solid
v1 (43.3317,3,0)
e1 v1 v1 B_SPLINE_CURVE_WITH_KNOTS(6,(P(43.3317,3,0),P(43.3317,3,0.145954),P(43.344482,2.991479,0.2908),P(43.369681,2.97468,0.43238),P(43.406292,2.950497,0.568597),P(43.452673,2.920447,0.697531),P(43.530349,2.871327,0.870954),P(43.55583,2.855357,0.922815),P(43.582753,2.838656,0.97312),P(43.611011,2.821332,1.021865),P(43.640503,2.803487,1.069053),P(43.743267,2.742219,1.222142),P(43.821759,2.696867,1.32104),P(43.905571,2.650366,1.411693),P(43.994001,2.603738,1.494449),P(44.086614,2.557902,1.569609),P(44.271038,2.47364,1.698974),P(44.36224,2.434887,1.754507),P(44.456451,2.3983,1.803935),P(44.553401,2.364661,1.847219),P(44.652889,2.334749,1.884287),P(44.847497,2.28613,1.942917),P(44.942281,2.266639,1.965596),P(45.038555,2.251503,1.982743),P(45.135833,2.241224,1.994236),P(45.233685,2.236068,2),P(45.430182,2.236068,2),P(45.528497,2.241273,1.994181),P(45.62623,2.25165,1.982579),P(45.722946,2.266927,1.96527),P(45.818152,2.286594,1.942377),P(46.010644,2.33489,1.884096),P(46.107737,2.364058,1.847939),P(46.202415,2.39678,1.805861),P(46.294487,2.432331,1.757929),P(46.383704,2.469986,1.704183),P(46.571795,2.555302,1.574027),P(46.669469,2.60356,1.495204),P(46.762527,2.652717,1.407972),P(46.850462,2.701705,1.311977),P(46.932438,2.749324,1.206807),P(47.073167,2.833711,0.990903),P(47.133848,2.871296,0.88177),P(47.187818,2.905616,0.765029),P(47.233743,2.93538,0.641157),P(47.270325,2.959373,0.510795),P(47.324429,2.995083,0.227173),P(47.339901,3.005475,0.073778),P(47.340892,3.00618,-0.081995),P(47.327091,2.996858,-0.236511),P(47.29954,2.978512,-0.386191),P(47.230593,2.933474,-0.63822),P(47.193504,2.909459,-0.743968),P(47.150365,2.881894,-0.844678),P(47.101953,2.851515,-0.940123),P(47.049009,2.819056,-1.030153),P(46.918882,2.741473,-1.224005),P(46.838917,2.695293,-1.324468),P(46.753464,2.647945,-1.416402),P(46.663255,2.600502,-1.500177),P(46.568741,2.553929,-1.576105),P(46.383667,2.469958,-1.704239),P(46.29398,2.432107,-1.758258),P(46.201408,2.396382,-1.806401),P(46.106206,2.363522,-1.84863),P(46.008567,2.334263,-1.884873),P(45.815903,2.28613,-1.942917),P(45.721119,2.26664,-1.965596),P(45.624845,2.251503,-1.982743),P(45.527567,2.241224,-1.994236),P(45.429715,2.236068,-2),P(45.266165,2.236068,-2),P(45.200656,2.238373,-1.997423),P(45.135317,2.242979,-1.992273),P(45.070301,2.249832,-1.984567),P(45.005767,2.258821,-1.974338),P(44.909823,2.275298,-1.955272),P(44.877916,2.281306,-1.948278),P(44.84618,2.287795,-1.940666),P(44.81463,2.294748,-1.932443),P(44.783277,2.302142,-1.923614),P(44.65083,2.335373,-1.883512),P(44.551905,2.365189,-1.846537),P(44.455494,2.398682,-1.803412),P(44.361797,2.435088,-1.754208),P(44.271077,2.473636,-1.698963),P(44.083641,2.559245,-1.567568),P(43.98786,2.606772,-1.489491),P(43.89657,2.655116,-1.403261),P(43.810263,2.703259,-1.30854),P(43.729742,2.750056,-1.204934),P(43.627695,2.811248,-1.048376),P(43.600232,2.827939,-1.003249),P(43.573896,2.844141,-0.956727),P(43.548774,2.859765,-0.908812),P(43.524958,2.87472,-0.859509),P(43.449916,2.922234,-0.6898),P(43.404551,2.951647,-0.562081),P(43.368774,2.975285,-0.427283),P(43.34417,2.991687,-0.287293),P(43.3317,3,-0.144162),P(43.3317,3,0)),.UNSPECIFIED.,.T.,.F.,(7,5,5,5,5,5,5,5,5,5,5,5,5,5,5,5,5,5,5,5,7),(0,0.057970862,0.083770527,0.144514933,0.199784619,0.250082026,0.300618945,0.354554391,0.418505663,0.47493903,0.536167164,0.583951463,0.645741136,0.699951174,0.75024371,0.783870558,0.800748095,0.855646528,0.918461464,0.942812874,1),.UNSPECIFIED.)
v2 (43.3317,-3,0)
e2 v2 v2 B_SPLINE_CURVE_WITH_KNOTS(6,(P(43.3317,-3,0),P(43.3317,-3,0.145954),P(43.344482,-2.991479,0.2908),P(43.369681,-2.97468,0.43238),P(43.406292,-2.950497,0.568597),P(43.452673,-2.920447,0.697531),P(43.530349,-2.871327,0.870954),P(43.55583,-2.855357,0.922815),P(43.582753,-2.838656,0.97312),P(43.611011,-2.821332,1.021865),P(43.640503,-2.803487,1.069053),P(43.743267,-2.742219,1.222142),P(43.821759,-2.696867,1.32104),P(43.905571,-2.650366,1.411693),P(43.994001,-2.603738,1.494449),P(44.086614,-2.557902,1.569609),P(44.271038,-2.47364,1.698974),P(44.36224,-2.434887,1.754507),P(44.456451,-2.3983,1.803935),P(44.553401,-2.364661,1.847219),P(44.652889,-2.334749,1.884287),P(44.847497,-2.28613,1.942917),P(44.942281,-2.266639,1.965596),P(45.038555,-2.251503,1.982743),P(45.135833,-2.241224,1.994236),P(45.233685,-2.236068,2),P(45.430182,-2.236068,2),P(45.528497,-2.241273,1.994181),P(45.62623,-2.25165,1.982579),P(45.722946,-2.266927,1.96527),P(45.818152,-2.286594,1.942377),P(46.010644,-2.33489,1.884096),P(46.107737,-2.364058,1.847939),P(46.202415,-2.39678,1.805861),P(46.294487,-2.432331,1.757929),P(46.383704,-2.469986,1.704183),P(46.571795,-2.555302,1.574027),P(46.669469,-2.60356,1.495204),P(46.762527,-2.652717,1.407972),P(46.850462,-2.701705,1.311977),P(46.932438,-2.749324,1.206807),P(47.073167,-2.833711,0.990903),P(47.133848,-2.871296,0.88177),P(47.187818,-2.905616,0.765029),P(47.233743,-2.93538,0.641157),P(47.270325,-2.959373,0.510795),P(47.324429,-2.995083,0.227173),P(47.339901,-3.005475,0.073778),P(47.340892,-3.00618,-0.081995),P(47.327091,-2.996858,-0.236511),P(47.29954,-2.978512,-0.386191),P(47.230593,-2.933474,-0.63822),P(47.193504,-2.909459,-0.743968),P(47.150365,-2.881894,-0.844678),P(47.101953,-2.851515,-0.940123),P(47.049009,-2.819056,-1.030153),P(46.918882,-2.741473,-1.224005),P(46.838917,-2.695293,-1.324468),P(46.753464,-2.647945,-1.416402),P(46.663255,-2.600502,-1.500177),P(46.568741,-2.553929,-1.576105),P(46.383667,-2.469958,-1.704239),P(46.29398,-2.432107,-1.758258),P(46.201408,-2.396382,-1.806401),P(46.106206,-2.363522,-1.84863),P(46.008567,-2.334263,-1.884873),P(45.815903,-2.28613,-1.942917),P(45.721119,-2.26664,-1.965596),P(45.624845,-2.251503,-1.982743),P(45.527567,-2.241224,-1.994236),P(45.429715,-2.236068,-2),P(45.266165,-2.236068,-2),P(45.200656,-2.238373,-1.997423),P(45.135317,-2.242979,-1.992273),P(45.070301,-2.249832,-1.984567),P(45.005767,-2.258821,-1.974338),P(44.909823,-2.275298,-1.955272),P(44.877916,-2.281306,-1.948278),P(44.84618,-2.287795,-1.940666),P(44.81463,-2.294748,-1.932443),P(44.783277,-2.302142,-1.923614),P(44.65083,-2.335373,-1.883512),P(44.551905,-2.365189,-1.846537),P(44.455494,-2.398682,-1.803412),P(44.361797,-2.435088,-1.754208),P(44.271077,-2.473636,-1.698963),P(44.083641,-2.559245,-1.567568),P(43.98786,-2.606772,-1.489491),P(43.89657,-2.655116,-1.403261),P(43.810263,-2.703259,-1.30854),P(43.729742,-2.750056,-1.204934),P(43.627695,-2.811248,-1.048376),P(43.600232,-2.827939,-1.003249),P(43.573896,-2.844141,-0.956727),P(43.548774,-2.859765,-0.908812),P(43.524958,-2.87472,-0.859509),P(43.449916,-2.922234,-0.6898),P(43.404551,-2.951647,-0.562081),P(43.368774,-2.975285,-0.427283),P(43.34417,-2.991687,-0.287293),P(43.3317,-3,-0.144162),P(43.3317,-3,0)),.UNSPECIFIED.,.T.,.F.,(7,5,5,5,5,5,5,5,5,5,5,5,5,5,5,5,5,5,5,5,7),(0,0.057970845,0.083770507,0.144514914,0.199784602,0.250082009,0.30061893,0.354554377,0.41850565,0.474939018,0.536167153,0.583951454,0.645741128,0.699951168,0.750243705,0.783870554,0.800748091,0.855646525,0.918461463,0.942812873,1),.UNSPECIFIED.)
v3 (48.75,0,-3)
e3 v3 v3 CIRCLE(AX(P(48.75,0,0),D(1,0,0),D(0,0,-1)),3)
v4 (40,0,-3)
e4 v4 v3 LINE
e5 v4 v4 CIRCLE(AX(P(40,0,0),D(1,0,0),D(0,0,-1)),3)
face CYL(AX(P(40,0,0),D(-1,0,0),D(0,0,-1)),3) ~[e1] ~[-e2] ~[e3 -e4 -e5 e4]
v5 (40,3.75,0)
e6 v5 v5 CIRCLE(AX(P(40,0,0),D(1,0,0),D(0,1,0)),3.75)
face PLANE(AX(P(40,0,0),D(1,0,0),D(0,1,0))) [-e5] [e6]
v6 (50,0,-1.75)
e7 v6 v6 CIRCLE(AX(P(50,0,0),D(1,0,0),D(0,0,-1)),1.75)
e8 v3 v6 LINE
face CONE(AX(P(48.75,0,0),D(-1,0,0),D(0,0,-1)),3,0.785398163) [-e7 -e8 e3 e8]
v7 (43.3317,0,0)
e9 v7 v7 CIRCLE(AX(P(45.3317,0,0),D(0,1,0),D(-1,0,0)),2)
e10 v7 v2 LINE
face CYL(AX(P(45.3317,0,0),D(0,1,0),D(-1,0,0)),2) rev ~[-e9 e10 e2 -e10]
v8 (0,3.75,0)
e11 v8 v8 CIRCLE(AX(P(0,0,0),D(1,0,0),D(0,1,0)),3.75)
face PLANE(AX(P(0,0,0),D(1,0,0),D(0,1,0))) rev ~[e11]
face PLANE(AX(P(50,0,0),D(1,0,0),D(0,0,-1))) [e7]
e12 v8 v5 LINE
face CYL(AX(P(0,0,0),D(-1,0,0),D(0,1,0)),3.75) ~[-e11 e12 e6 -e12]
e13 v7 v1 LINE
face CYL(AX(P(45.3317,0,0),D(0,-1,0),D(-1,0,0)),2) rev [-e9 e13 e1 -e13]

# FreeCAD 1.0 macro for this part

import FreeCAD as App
import Part
import Sketcher

V = App.Vector
Q = App.Units.Quantity


def edges_at(feature, points):
    """Names of the edges that pass closest to the given points."""
    edges = feature.Shape.Edges
    near = lambda p: min(range(len(edges)), key=lambda i: edges[i].distToShape(Part.Vertex(*p))[0])
    return sorted({f"Edge{near(p) + 1}" for p in points})

doc = App.newDocument("Part")
body = doc.addObject("PartDesign::Body", "Body")

# Sketch on YZ plane
sketch1 = body.newObject("Sketcher::SketchObject", "Sketch")
sketch1.AttachmentSupport = (doc.getObject("YZ_Plane"), [""])
sketch1.MapMode = "FlatFace"
sketch1.addGeometry(Part.Circle(V(0, 0, 0), V(0, 0, 1), 3.8), False)
sketch1.addConstraint(Sketcher.Constraint("Coincident", 0, 3, -1, 1))
sketch1.addConstraint(Sketcher.Constraint("Diameter", 0, Q("7.5 mm")))
pad1 = body.newObject("PartDesign::Pad", "Pad")
pad1.Profile = sketch1
pad1.Length = 40

# Sketch on YZ plane
sketch2 = body.newObject("Sketcher::SketchObject", "Sketch001")
sketch2.AttachmentSupport = (doc.getObject("YZ_Plane"), [""])
sketch2.MapMode = "FlatFace"
sketch2.AttachmentOffset = App.Placement(V(0, 0, 40), App.Rotation())
sketch2.addGeometry(Part.Circle(V(0, 0, 0), V(0, 0, 1), 3), False)
sketch2.addConstraint(Sketcher.Constraint("Coincident", 0, 3, -1, 1))
sketch2.addConstraint(Sketcher.Constraint("Diameter", 0, Q("6 mm")))
pad2 = body.newObject("PartDesign::Pad", "Pad001")
pad2.Profile = sketch2
pad2.Length = 10
doc.recompute()

chamfer = body.newObject("PartDesign::Chamfer", "Chamfer")
chamfer.Base = (pad2, edges_at(pad2, [(50, 0, 3)]))
chamfer.Size = 1.25

# Sketch on XZ plane
sketch3 = body.newObject("Sketcher::SketchObject", "Sketch002")
sketch3.AttachmentSupport = (doc.getObject("XZ_Plane"), [""])
sketch3.MapMode = "FlatFace"
sketch3.addGeometry(Part.Circle(V(45.3, 0, 0), V(0, 0, 1), 2), False)
sketch3.addConstraint(Sketcher.Constraint("PointOnObject", 0, 3, -1))
sketch3.addConstraint(Sketcher.Constraint("Diameter", 0, Q("4 mm")))
sketch3.addConstraint(Sketcher.Constraint("DistanceX", -1, 1, 0, 3, Q("45.3317 mm")))
pocket1 = body.newObject("PartDesign::Pocket", "Pocket")
pocket1.Profile = sketch3
pocket1.Length = 10
pocket1.Midplane = True

doc.recompute()
